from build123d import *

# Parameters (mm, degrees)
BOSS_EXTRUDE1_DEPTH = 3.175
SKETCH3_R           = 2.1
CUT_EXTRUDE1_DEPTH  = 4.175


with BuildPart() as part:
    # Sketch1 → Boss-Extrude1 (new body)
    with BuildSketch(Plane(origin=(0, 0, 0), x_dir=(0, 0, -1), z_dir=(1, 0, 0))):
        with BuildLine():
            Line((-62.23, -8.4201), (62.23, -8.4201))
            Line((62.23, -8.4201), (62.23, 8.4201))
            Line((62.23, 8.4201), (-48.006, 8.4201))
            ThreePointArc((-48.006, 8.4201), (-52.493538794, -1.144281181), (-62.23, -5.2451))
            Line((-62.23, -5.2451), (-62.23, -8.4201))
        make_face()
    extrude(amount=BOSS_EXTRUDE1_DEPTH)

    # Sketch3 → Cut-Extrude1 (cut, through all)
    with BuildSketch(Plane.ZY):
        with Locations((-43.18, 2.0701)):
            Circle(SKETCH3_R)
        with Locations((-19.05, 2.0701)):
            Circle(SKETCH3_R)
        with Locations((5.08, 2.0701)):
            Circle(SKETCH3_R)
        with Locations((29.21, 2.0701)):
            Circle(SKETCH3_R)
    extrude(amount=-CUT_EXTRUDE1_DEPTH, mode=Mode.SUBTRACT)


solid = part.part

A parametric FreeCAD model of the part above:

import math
import FreeCAD as App
import Part
import Sketcher
from FreeCAD import Vector
Q = App.Units.Quantity

doc = App.newDocument("Part")
body = doc.addObject("PartDesign::Body", "Body")

sketch1 = body.newObject("Sketcher::SketchObject", "Sketch")
sketch1.AttachmentSupport = (doc.getObject("YZ_Plane"), [""])
sketch1.MapMode = "FlatFace"
sketch1.addGeometry(Part.LineSegment(Vector(-8.4, 62.2, 0), Vector(-8.4, -62.2, 0)), False)
sketch1.addGeometry(Part.LineSegment(Vector(-8.4, -62.2, 0), Vector(8.4, -62.2, 0)), False)
sketch1.addGeometry(Part.LineSegment(Vector(8.4, -62.2, 0), Vector(8.4, 48, 0)), False)
sketch1.addGeometry(Part.ArcOfCircle(Part.Circle(Vector(9.5, 62.7, 0), Vector(0, 0, 1), 14.7), math.radians(-178), math.radians(-94)), False)
sketch1.addGeometry(Part.LineSegment(Vector(-5.2, 62.2, 0), Vector(-8.4, 62.2, 0)), False)
sketch1.addConstraint(Sketcher.Constraint("Coincident", 0, 2, 1, 1))
sketch1.addConstraint(Sketcher.Constraint("Coincident", 1, 2, 2, 1))
sketch1.addConstraint(Sketcher.Constraint("Coincident", 2, 2, 3, 2))
sketch1.addConstraint(Sketcher.Constraint("Coincident", 3, 1, 4, 1))
sketch1.addConstraint(Sketcher.Constraint("Coincident", 4, 2, 0, 1))
sketch1.addConstraint(Sketcher.Constraint("Vertical", 0))
sketch1.addConstraint(Sketcher.Constraint("Horizontal", 1))
sketch1.addConstraint(Sketcher.Constraint("Vertical", 2))
sketch1.addConstraint(Sketcher.Constraint("Horizontal", 4))
sketch1.addConstraint(Sketcher.Constraint("Symmetric", 1, 2, 4, 2, -1, 1))
sketch1.addConstraint(Sketcher.Constraint("Radius", 3, Q("0.58 in")))
sketch1.addConstraint(Sketcher.Constraint("DistanceY", 0, 2, 0, 1, Q("4.9 in")))
sketch1.addConstraint(Sketcher.Constraint("DistanceY", 2, 1, 2, 2, Q("4.34 in")))
sketch1.addConstraint(Sketcher.Constraint("DistanceX", 1, 1, 1, 2, Q("0.663 in")))
sketch1.addConstraint(Sketcher.Constraint("DistanceX", 4, 2, 4, 1, Q("0.125 in")))
pad1 = body.newObject("PartDesign::Pad", "Pad")
pad1.Profile = sketch1
pad1.Length = Q("0.125 in")

sketch2 = body.newObject("Sketcher::SketchObject", "Sketch001")
sketch2.AttachmentSupport = (doc.getObject("YZ_Plane"), [""])
sketch2.MapMode = "FlatFace"
sketch2.addGeometry(Part.Circle(Vector(2.1, -43.2, 0), Vector(0, 0, 1), 2.1), False)
sketch2.addGeometry(Part.Circle(Vector(2.1, -19.1, 0), Vector(0, 0, 1), 2.1), False)
sketch2.addGeometry(Part.Circle(Vector(2.1, 5.1, 0), Vector(0, 0, 1), 2.1), False)
sketch2.addGeometry(Part.Circle(Vector(2.1, 29.2, 0), Vector(0, 0, 1), 2.1), False)
sketch2.addConstraint(Sketcher.Constraint("Equal", 0, 1))
sketch2.addConstraint(Sketcher.Constraint("Equal", 1, 2))
sketch2.addConstraint(Sketcher.Constraint("Equal", 2, 3))
sketch2.addConstraint(Sketcher.Constraint("Vertical", 0, 3, 1, 3))
sketch2.addConstraint(Sketcher.Constraint("Vertical", 1, 3, 2, 3))
sketch2.addConstraint(Sketcher.Constraint("Vertical", 2, 3, 3, 3))
sketch2.addConstraint(Sketcher.Constraint("DistanceY", 0, 3, -1, 1, Q("1.7 in")))
sketch2.addConstraint(Sketcher.Constraint("DistanceY", -1, 1, 2, 3, Q("0.2 in")))
sketch2.addConstraint(Sketcher.Constraint("DistanceY", 1, 3, 3, 3, Q("1.9 in")))
sketch2.addConstraint(Sketcher.Constraint("Diameter", 0, Q("4.2 mm")))
sketch2.addConstraint(Sketcher.Constraint("DistanceY", 1, 3, -1, 1, Q("0.75 in")))
sketch2.addConstraint(Sketcher.Constraint("DistanceX", -1, 1, 0, 3, Q("0.0815 in")))
pocket1 = body.newObject("PartDesign::Pocket", "Pocket")
pocket1.Profile = sketch2
pocket1.Type = "ThroughAll"
pocket1.Reversed = True

doc.recompute()
